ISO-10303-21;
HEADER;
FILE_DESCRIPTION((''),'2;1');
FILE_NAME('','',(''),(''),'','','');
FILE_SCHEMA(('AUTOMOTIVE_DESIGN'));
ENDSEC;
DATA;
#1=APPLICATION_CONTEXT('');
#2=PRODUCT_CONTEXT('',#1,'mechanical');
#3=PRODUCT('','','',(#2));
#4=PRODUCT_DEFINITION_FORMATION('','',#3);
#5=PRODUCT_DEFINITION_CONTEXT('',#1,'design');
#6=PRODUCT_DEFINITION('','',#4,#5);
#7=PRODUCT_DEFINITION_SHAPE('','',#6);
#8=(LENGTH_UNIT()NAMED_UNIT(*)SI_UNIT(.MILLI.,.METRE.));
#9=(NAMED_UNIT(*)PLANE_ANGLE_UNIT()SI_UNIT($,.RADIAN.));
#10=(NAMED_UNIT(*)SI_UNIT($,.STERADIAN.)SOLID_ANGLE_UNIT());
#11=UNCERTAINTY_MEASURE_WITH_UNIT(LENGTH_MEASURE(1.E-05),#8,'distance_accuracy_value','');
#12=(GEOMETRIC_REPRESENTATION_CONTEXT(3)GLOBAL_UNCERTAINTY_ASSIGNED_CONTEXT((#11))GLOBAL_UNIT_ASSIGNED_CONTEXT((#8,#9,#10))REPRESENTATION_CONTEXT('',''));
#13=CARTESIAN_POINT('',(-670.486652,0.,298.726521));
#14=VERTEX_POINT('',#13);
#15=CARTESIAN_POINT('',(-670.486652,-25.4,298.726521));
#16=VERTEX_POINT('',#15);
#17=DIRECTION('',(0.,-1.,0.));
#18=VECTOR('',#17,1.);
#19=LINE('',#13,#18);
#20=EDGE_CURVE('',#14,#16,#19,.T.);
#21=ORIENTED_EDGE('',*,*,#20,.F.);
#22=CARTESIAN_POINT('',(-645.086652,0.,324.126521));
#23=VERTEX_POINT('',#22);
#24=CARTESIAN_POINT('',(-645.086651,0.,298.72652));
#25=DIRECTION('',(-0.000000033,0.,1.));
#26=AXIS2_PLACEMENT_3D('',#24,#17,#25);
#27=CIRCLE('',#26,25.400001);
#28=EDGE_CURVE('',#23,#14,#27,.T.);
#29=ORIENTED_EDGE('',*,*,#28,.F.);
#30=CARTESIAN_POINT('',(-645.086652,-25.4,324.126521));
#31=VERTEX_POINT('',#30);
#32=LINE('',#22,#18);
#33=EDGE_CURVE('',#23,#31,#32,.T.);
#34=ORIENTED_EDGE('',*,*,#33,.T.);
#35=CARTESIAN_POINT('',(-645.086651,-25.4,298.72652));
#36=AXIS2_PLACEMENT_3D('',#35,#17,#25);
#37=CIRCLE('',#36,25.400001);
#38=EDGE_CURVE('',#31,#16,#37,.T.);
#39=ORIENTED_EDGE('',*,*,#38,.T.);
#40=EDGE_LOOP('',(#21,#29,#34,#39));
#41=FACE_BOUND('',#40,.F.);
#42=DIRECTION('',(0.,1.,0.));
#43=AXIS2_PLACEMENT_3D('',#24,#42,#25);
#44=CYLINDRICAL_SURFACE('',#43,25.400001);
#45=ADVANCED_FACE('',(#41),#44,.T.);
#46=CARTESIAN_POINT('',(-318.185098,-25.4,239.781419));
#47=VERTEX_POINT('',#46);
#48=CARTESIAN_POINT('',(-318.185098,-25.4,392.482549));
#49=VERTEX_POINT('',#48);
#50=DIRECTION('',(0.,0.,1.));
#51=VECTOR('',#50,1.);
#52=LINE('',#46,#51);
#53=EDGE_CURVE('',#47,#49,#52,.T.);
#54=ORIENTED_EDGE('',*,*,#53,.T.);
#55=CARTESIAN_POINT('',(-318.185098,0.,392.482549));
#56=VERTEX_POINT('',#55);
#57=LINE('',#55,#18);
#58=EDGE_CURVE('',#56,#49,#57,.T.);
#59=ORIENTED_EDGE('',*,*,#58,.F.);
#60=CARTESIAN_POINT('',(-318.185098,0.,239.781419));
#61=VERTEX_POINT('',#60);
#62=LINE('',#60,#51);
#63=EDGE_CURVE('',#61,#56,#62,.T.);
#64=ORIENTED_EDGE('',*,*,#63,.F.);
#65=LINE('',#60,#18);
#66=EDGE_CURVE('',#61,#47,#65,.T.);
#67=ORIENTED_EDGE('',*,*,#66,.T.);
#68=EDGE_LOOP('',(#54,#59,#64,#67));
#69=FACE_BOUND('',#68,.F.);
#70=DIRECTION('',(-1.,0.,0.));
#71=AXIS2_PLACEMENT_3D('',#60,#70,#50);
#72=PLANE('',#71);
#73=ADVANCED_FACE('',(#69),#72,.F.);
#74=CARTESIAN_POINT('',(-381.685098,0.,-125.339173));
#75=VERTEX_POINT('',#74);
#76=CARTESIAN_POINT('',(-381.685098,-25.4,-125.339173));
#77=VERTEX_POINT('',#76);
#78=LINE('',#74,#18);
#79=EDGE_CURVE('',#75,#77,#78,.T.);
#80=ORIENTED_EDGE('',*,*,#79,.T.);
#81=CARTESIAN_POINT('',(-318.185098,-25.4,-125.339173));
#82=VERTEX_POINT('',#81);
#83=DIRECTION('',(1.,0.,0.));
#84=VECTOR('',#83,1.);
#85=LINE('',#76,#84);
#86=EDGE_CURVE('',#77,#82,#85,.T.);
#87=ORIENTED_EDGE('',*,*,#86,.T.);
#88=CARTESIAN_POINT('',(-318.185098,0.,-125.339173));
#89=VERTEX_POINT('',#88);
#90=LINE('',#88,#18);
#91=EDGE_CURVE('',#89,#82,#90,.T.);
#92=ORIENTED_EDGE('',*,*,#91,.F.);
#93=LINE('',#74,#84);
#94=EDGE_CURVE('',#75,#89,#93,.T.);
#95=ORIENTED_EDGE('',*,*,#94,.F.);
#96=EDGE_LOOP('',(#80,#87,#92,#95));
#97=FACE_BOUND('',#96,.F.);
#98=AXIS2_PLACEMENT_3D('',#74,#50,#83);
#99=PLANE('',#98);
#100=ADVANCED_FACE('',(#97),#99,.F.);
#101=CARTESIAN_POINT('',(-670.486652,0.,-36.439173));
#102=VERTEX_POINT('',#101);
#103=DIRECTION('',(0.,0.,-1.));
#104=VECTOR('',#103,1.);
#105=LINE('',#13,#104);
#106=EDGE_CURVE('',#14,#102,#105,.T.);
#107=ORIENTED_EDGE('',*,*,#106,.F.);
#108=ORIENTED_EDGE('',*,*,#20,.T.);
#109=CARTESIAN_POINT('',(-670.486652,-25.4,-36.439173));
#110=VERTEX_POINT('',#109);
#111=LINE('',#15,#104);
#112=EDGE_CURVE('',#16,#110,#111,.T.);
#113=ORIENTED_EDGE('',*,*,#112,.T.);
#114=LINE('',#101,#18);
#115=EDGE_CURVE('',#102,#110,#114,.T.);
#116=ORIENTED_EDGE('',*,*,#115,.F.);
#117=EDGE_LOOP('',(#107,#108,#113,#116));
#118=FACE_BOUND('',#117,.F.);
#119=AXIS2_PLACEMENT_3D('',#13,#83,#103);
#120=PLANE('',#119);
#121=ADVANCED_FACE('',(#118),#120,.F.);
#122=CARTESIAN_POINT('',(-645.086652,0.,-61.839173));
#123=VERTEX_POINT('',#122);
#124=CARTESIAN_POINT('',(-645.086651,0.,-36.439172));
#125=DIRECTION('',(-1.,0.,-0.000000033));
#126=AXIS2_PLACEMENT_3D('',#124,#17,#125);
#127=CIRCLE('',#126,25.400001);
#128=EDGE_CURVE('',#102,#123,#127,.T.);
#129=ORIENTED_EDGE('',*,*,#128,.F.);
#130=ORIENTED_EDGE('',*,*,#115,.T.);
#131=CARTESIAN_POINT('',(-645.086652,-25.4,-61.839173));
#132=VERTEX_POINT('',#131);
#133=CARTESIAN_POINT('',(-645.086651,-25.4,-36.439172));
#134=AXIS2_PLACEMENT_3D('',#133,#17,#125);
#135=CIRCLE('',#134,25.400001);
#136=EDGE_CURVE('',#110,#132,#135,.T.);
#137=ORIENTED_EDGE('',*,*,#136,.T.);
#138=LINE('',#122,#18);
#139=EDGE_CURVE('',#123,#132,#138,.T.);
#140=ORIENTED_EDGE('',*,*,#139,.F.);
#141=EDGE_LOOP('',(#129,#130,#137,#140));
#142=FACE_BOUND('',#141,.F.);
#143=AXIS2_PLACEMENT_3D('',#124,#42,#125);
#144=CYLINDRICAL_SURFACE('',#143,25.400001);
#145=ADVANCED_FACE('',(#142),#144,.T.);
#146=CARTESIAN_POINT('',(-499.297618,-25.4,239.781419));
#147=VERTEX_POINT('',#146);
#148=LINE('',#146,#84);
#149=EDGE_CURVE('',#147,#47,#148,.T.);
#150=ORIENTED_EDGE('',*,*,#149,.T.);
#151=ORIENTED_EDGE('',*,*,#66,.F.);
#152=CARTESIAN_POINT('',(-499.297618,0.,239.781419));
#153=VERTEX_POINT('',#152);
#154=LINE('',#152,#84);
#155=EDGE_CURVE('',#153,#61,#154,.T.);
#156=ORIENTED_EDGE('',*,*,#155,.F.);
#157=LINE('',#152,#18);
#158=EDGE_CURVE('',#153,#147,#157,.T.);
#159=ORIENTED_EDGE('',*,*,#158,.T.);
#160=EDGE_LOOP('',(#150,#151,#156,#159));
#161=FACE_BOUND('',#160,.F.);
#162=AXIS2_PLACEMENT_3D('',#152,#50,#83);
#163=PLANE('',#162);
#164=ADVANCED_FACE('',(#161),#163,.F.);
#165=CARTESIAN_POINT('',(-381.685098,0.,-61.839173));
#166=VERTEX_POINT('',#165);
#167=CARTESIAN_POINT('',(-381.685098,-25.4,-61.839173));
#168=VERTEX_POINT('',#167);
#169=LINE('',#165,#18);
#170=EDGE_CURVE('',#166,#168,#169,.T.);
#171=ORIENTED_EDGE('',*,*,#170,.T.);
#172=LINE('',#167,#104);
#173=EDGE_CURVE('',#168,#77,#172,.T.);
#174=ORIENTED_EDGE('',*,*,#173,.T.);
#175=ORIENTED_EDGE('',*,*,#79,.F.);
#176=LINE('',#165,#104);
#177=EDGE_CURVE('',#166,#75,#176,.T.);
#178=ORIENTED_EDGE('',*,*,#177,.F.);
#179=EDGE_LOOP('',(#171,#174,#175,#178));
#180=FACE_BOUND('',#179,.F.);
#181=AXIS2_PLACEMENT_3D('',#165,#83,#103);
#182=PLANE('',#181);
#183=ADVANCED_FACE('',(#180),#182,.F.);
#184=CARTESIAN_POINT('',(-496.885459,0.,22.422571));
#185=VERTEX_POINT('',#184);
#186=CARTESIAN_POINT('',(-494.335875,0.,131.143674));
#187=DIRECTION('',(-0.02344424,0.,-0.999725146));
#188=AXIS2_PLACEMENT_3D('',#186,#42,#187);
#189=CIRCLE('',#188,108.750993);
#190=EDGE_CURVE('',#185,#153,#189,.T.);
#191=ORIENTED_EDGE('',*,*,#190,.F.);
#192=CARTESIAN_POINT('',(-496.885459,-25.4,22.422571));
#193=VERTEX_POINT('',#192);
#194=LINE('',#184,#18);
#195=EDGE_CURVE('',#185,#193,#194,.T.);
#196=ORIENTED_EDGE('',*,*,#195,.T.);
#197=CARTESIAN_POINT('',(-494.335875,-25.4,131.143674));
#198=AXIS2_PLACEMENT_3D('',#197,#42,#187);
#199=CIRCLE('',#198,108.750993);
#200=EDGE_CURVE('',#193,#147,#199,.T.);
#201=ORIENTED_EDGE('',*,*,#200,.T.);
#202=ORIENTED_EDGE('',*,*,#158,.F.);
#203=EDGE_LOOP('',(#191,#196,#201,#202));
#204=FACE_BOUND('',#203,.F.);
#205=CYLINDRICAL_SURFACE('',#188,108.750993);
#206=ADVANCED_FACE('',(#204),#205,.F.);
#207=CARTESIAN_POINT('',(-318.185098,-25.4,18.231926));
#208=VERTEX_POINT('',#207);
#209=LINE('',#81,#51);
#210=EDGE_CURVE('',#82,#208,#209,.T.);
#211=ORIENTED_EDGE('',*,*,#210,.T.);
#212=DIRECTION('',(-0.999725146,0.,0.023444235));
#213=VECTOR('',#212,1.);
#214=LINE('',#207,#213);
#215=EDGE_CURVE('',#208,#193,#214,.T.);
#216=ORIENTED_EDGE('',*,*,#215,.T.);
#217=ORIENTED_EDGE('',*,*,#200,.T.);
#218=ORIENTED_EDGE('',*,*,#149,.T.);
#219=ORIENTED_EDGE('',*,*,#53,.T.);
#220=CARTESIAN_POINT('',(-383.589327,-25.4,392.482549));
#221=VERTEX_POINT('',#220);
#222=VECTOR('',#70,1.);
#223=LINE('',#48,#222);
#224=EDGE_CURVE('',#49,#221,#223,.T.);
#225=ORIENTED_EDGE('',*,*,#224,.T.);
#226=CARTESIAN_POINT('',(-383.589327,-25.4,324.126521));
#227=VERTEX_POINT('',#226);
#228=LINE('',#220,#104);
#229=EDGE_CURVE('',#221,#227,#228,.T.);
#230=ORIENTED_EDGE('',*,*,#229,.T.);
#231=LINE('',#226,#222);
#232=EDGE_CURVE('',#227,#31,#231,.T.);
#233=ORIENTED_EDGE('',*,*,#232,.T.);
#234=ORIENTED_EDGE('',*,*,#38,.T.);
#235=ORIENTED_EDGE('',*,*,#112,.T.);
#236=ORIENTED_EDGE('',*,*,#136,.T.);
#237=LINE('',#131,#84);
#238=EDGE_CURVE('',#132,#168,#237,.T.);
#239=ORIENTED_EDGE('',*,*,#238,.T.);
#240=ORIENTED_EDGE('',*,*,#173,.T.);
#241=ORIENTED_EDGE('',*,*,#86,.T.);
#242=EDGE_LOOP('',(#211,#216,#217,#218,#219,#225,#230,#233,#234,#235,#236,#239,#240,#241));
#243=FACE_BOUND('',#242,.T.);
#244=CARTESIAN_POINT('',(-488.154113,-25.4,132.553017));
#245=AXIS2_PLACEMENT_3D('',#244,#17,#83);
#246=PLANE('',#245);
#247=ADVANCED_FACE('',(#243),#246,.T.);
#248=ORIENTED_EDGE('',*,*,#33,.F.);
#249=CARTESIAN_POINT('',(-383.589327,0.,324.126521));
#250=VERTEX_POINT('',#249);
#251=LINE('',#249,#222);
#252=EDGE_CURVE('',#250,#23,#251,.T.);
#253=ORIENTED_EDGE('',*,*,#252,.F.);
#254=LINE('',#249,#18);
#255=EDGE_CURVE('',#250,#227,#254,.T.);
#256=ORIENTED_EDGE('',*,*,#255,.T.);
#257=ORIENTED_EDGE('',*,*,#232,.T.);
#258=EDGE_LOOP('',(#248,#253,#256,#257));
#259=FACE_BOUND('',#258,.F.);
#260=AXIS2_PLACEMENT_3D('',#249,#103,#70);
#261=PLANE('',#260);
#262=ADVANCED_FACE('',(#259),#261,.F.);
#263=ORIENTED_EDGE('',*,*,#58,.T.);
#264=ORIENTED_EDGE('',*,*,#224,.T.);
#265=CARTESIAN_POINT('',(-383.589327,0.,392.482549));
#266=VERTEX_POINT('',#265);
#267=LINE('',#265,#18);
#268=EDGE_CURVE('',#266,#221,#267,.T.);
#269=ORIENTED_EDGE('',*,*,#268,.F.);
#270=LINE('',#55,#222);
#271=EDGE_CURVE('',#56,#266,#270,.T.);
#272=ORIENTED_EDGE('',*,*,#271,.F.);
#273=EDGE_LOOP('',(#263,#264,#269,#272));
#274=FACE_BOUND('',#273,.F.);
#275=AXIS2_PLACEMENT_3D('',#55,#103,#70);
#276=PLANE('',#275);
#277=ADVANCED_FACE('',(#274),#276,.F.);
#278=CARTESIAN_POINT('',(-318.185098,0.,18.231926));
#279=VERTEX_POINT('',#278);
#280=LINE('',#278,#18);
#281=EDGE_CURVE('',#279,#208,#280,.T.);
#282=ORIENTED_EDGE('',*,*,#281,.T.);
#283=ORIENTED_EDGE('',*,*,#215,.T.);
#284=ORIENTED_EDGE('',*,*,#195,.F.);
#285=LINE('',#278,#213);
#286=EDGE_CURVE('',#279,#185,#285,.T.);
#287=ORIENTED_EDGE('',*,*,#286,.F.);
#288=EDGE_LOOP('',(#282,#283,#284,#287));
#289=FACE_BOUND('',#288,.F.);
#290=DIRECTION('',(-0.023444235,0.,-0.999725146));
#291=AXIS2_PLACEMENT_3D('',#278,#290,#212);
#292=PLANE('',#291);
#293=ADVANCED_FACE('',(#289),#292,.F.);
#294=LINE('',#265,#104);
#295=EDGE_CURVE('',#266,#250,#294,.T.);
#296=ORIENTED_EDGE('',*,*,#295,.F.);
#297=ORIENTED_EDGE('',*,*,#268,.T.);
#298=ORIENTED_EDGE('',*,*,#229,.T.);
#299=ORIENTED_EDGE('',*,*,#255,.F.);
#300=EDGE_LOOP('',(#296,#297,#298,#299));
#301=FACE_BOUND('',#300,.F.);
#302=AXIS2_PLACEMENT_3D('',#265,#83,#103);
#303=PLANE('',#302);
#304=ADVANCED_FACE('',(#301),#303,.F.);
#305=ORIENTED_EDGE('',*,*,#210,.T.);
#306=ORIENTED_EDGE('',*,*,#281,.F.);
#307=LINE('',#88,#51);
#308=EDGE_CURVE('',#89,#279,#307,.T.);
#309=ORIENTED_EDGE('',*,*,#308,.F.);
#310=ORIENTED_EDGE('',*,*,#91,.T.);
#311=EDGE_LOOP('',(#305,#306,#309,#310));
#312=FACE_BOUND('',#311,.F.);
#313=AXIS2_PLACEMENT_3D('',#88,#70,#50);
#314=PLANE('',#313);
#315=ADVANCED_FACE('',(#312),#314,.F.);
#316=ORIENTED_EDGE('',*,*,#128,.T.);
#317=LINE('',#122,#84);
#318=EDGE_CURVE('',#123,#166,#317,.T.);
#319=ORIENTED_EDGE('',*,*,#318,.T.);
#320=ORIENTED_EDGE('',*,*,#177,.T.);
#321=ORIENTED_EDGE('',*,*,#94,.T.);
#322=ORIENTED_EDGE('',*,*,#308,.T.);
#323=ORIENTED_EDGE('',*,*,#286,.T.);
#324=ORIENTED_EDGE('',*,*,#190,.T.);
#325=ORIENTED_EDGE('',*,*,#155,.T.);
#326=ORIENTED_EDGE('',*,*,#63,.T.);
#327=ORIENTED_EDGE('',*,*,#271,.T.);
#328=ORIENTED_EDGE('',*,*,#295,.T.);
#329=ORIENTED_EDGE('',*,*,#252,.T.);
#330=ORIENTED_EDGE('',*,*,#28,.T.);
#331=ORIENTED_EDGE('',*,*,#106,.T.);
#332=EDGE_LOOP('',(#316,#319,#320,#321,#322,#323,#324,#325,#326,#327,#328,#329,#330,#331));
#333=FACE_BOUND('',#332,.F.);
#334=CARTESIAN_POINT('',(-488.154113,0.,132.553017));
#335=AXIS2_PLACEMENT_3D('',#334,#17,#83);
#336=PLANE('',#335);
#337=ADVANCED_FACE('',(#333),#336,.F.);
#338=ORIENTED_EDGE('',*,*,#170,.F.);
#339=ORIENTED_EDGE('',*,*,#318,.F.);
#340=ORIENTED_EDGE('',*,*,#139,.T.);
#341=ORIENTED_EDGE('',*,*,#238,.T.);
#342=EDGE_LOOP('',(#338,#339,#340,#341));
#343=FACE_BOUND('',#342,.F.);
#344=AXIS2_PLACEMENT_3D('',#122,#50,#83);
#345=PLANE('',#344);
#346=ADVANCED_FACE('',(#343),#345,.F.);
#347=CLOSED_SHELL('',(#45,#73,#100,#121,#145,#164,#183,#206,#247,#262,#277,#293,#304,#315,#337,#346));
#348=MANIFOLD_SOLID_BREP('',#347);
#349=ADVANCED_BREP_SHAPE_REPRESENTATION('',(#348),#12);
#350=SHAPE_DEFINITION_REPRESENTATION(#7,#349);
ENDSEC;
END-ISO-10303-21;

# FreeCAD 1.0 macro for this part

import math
import FreeCAD as App
import Part
import Sketcher
Q = App.Units.Quantity

doc = App.newDocument("Part")
body = doc.addObject("PartDesign::Body", "Body")

# Sketch on XZ plane
sketch1 = body.newObject("Sketcher::SketchObject", "Sketch")
sketch1.AttachmentSupport = (doc.getObject("XZ_Plane"), [""])
sketch1.MapMode = "FlatFace"
sketch1.addGeometry(Part.LineSegment(App.Vector(-383.589327, 324.126521, 0), App.Vector(-645.086652, 324.126521, 0)), False)
sketch1.addGeometry(Part.ArcOfCircle(Part.Circle(App.Vector(-645.086651, 298.72652, 0), App.Vector(0, 0, 1), 25.400001), math.radians(90.000002), math.radians(179.999998)), False)
sketch1.addGeometry(Part.LineSegment(App.Vector(-670.486652, 298.726521, 0), App.Vector(-670.486652, -36.439173, 0)), False)
sketch1.addGeometry(Part.ArcOfCircle(Part.Circle(App.Vector(-645.086651, -36.439172, 0), App.Vector(0, 0, 1), 25.400001), math.radians(-179.999998), math.radians(-90.000002)), False)
sketch1.addGeometry(Part.LineSegment(App.Vector(-645.086652, -61.839173, 0), App.Vector(-381.685098, -61.839173, 0)), False)
sketch1.addGeometry(Part.LineSegment(App.Vector(-381.685098, -61.839173, 0), App.Vector(-381.685098, -125.339173, 0)), False)
sketch1.addGeometry(Part.LineSegment(App.Vector(-381.685098, -125.339173, 0), App.Vector(-318.185098, -125.339173, 0)), False)
sketch1.addGeometry(Part.LineSegment(App.Vector(-318.185098, -125.339173, 0), App.Vector(-318.185098, 18.231926, 0)), False)
sketch1.addGeometry(Part.LineSegment(App.Vector(-318.185098, 18.231926, 0), App.Vector(-496.885459, 22.422571, 0)), False)
sketch1.addGeometry(Part.ArcOfCircle(Part.Circle(App.Vector(-494.335875, 131.143674, 0), App.Vector(0, 0, 1), 108.750993), math.radians(92.615017), math.radians(268.656621)), False)
sketch1.addGeometry(Part.LineSegment(App.Vector(-499.297618, 239.781419, 0), App.Vector(-318.185098, 239.781419, 0)), False)
sketch1.addGeometry(Part.LineSegment(App.Vector(-318.185098, 239.781419, 0), App.Vector(-318.185098, 392.482549, 0)), False)
sketch1.addGeometry(Part.LineSegment(App.Vector(-318.185098, 392.482549, 0), App.Vector(-383.589327, 392.482549, 0)), False)
sketch1.addGeometry(Part.LineSegment(App.Vector(-383.589327, 392.482549, 0), App.Vector(-383.589327, 324.126521, 0)), False)
sketch1.addConstraint(Sketcher.Constraint("Tangent", 0, 2, 1, 1))
sketch1.addConstraint(Sketcher.Constraint("Tangent", 1, 2, 2, 1))
sketch1.addConstraint(Sketcher.Constraint("Tangent", 2, 2, 3, 1))
sketch1.addConstraint(Sketcher.Constraint("Tangent", 3, 2, 4, 1))
sketch1.addConstraint(Sketcher.Constraint("Coincident", 4, 2, 5, 1))
sketch1.addConstraint(Sketcher.Constraint("Coincident", 5, 2, 6, 1))
sketch1.addConstraint(Sketcher.Constraint("Coincident", 6, 2, 7, 1))
sketch1.addConstraint(Sketcher.Constraint("Coincident", 7, 2, 8, 1))
sketch1.addConstraint(Sketcher.Constraint("Tangent", 8, 2, 9, 2))
sketch1.addConstraint(Sketcher.Constraint("Coincident", 9, 1, 10, 1))
sketch1.addConstraint(Sketcher.Constraint("Coincident", 10, 2, 11, 1))
sketch1.addConstraint(Sketcher.Constraint("Coincident", 11, 2, 12, 1))
sketch1.addConstraint(Sketcher.Constraint("Coincident", 12, 2, 13, 1))
sketch1.addConstraint(Sketcher.Constraint("Coincident", 13, 2, 0, 1))
sketch1.addConstraint(Sketcher.Constraint("Horizontal", 0))
sketch1.addConstraint(Sketcher.Constraint("Vertical", 2))
sketch1.addConstraint(Sketcher.Constraint("Horizontal", 4))
sketch1.addConstraint(Sketcher.Constraint("Vertical", 5))
sketch1.addConstraint(Sketcher.Constraint("Horizontal", 6))
sketch1.addConstraint(Sketcher.Constraint("Vertical", 7))
sketch1.addConstraint(Sketcher.Constraint("Horizontal", 10))
sketch1.addConstraint(Sketcher.Constraint("Vertical", 11))
sketch1.addConstraint(Sketcher.Constraint("Horizontal", 12))
sketch1.addConstraint(Sketcher.Constraint("Vertical", 13))
sketch1.addConstraint(Sketcher.Constraint("Equal", 1, 3))
sketch1.addConstraint(Sketcher.Constraint("Vertical", 7, 2, 10, 2))
sketch1.addConstraint(Sketcher.Constraint("Equal", 6, 5))
sketch1.addConstraint(Sketcher.Constraint("Radius", 1, Q("1 in")))
sketch1.addConstraint(Sketcher.Constraint("DistanceX", 6, 1, 6, 2, Q("2.5 in")))
sketch1.addConstraint(Sketcher.Constraint("DistanceY", 7, 1, 7, 2, 143.571099))
sketch1.addConstraint(Sketcher.Constraint("Radius", 9, 108.750993))
sketch1.addConstraint(Sketcher.Constraint("DistanceX", 10, 1, 10, 2, 181.11252))
sketch1.addConstraint(Sketcher.Constraint("DistanceX", 12, 2, 12, 1, 65.404229))
sketch1.addConstraint(Sketcher.Constraint("DistanceY", 11, 1, 11, 2, 152.70113))
sketch1.addConstraint(Sketcher.Constraint("DistanceX", 4, 2, -1, 1, 381.685098))
sketch1.addConstraint(Sketcher.Constraint("DistanceY", 9, 1, 1, 3, 58.945101))
sketch1.addConstraint(Sketcher.Constraint("Distance", 8, 178.749491))
sketch1.addConstraint(Sketcher.Constraint("DistanceX", 0, 2, 0, 1, 261.497325))
sketch1.addConstraint(Sketcher.Constraint("DistanceY", 2, 2, 2, 1, 335.165694))
sketch1.addConstraint(Sketcher.Constraint("DistanceY", -1, 1, 1, 3, 298.72652))
pad1 = body.newObject("PartDesign::Pad", "Pad")
pad1.Profile = sketch1
pad1.Length = Q("1 in")

doc.recompute()
